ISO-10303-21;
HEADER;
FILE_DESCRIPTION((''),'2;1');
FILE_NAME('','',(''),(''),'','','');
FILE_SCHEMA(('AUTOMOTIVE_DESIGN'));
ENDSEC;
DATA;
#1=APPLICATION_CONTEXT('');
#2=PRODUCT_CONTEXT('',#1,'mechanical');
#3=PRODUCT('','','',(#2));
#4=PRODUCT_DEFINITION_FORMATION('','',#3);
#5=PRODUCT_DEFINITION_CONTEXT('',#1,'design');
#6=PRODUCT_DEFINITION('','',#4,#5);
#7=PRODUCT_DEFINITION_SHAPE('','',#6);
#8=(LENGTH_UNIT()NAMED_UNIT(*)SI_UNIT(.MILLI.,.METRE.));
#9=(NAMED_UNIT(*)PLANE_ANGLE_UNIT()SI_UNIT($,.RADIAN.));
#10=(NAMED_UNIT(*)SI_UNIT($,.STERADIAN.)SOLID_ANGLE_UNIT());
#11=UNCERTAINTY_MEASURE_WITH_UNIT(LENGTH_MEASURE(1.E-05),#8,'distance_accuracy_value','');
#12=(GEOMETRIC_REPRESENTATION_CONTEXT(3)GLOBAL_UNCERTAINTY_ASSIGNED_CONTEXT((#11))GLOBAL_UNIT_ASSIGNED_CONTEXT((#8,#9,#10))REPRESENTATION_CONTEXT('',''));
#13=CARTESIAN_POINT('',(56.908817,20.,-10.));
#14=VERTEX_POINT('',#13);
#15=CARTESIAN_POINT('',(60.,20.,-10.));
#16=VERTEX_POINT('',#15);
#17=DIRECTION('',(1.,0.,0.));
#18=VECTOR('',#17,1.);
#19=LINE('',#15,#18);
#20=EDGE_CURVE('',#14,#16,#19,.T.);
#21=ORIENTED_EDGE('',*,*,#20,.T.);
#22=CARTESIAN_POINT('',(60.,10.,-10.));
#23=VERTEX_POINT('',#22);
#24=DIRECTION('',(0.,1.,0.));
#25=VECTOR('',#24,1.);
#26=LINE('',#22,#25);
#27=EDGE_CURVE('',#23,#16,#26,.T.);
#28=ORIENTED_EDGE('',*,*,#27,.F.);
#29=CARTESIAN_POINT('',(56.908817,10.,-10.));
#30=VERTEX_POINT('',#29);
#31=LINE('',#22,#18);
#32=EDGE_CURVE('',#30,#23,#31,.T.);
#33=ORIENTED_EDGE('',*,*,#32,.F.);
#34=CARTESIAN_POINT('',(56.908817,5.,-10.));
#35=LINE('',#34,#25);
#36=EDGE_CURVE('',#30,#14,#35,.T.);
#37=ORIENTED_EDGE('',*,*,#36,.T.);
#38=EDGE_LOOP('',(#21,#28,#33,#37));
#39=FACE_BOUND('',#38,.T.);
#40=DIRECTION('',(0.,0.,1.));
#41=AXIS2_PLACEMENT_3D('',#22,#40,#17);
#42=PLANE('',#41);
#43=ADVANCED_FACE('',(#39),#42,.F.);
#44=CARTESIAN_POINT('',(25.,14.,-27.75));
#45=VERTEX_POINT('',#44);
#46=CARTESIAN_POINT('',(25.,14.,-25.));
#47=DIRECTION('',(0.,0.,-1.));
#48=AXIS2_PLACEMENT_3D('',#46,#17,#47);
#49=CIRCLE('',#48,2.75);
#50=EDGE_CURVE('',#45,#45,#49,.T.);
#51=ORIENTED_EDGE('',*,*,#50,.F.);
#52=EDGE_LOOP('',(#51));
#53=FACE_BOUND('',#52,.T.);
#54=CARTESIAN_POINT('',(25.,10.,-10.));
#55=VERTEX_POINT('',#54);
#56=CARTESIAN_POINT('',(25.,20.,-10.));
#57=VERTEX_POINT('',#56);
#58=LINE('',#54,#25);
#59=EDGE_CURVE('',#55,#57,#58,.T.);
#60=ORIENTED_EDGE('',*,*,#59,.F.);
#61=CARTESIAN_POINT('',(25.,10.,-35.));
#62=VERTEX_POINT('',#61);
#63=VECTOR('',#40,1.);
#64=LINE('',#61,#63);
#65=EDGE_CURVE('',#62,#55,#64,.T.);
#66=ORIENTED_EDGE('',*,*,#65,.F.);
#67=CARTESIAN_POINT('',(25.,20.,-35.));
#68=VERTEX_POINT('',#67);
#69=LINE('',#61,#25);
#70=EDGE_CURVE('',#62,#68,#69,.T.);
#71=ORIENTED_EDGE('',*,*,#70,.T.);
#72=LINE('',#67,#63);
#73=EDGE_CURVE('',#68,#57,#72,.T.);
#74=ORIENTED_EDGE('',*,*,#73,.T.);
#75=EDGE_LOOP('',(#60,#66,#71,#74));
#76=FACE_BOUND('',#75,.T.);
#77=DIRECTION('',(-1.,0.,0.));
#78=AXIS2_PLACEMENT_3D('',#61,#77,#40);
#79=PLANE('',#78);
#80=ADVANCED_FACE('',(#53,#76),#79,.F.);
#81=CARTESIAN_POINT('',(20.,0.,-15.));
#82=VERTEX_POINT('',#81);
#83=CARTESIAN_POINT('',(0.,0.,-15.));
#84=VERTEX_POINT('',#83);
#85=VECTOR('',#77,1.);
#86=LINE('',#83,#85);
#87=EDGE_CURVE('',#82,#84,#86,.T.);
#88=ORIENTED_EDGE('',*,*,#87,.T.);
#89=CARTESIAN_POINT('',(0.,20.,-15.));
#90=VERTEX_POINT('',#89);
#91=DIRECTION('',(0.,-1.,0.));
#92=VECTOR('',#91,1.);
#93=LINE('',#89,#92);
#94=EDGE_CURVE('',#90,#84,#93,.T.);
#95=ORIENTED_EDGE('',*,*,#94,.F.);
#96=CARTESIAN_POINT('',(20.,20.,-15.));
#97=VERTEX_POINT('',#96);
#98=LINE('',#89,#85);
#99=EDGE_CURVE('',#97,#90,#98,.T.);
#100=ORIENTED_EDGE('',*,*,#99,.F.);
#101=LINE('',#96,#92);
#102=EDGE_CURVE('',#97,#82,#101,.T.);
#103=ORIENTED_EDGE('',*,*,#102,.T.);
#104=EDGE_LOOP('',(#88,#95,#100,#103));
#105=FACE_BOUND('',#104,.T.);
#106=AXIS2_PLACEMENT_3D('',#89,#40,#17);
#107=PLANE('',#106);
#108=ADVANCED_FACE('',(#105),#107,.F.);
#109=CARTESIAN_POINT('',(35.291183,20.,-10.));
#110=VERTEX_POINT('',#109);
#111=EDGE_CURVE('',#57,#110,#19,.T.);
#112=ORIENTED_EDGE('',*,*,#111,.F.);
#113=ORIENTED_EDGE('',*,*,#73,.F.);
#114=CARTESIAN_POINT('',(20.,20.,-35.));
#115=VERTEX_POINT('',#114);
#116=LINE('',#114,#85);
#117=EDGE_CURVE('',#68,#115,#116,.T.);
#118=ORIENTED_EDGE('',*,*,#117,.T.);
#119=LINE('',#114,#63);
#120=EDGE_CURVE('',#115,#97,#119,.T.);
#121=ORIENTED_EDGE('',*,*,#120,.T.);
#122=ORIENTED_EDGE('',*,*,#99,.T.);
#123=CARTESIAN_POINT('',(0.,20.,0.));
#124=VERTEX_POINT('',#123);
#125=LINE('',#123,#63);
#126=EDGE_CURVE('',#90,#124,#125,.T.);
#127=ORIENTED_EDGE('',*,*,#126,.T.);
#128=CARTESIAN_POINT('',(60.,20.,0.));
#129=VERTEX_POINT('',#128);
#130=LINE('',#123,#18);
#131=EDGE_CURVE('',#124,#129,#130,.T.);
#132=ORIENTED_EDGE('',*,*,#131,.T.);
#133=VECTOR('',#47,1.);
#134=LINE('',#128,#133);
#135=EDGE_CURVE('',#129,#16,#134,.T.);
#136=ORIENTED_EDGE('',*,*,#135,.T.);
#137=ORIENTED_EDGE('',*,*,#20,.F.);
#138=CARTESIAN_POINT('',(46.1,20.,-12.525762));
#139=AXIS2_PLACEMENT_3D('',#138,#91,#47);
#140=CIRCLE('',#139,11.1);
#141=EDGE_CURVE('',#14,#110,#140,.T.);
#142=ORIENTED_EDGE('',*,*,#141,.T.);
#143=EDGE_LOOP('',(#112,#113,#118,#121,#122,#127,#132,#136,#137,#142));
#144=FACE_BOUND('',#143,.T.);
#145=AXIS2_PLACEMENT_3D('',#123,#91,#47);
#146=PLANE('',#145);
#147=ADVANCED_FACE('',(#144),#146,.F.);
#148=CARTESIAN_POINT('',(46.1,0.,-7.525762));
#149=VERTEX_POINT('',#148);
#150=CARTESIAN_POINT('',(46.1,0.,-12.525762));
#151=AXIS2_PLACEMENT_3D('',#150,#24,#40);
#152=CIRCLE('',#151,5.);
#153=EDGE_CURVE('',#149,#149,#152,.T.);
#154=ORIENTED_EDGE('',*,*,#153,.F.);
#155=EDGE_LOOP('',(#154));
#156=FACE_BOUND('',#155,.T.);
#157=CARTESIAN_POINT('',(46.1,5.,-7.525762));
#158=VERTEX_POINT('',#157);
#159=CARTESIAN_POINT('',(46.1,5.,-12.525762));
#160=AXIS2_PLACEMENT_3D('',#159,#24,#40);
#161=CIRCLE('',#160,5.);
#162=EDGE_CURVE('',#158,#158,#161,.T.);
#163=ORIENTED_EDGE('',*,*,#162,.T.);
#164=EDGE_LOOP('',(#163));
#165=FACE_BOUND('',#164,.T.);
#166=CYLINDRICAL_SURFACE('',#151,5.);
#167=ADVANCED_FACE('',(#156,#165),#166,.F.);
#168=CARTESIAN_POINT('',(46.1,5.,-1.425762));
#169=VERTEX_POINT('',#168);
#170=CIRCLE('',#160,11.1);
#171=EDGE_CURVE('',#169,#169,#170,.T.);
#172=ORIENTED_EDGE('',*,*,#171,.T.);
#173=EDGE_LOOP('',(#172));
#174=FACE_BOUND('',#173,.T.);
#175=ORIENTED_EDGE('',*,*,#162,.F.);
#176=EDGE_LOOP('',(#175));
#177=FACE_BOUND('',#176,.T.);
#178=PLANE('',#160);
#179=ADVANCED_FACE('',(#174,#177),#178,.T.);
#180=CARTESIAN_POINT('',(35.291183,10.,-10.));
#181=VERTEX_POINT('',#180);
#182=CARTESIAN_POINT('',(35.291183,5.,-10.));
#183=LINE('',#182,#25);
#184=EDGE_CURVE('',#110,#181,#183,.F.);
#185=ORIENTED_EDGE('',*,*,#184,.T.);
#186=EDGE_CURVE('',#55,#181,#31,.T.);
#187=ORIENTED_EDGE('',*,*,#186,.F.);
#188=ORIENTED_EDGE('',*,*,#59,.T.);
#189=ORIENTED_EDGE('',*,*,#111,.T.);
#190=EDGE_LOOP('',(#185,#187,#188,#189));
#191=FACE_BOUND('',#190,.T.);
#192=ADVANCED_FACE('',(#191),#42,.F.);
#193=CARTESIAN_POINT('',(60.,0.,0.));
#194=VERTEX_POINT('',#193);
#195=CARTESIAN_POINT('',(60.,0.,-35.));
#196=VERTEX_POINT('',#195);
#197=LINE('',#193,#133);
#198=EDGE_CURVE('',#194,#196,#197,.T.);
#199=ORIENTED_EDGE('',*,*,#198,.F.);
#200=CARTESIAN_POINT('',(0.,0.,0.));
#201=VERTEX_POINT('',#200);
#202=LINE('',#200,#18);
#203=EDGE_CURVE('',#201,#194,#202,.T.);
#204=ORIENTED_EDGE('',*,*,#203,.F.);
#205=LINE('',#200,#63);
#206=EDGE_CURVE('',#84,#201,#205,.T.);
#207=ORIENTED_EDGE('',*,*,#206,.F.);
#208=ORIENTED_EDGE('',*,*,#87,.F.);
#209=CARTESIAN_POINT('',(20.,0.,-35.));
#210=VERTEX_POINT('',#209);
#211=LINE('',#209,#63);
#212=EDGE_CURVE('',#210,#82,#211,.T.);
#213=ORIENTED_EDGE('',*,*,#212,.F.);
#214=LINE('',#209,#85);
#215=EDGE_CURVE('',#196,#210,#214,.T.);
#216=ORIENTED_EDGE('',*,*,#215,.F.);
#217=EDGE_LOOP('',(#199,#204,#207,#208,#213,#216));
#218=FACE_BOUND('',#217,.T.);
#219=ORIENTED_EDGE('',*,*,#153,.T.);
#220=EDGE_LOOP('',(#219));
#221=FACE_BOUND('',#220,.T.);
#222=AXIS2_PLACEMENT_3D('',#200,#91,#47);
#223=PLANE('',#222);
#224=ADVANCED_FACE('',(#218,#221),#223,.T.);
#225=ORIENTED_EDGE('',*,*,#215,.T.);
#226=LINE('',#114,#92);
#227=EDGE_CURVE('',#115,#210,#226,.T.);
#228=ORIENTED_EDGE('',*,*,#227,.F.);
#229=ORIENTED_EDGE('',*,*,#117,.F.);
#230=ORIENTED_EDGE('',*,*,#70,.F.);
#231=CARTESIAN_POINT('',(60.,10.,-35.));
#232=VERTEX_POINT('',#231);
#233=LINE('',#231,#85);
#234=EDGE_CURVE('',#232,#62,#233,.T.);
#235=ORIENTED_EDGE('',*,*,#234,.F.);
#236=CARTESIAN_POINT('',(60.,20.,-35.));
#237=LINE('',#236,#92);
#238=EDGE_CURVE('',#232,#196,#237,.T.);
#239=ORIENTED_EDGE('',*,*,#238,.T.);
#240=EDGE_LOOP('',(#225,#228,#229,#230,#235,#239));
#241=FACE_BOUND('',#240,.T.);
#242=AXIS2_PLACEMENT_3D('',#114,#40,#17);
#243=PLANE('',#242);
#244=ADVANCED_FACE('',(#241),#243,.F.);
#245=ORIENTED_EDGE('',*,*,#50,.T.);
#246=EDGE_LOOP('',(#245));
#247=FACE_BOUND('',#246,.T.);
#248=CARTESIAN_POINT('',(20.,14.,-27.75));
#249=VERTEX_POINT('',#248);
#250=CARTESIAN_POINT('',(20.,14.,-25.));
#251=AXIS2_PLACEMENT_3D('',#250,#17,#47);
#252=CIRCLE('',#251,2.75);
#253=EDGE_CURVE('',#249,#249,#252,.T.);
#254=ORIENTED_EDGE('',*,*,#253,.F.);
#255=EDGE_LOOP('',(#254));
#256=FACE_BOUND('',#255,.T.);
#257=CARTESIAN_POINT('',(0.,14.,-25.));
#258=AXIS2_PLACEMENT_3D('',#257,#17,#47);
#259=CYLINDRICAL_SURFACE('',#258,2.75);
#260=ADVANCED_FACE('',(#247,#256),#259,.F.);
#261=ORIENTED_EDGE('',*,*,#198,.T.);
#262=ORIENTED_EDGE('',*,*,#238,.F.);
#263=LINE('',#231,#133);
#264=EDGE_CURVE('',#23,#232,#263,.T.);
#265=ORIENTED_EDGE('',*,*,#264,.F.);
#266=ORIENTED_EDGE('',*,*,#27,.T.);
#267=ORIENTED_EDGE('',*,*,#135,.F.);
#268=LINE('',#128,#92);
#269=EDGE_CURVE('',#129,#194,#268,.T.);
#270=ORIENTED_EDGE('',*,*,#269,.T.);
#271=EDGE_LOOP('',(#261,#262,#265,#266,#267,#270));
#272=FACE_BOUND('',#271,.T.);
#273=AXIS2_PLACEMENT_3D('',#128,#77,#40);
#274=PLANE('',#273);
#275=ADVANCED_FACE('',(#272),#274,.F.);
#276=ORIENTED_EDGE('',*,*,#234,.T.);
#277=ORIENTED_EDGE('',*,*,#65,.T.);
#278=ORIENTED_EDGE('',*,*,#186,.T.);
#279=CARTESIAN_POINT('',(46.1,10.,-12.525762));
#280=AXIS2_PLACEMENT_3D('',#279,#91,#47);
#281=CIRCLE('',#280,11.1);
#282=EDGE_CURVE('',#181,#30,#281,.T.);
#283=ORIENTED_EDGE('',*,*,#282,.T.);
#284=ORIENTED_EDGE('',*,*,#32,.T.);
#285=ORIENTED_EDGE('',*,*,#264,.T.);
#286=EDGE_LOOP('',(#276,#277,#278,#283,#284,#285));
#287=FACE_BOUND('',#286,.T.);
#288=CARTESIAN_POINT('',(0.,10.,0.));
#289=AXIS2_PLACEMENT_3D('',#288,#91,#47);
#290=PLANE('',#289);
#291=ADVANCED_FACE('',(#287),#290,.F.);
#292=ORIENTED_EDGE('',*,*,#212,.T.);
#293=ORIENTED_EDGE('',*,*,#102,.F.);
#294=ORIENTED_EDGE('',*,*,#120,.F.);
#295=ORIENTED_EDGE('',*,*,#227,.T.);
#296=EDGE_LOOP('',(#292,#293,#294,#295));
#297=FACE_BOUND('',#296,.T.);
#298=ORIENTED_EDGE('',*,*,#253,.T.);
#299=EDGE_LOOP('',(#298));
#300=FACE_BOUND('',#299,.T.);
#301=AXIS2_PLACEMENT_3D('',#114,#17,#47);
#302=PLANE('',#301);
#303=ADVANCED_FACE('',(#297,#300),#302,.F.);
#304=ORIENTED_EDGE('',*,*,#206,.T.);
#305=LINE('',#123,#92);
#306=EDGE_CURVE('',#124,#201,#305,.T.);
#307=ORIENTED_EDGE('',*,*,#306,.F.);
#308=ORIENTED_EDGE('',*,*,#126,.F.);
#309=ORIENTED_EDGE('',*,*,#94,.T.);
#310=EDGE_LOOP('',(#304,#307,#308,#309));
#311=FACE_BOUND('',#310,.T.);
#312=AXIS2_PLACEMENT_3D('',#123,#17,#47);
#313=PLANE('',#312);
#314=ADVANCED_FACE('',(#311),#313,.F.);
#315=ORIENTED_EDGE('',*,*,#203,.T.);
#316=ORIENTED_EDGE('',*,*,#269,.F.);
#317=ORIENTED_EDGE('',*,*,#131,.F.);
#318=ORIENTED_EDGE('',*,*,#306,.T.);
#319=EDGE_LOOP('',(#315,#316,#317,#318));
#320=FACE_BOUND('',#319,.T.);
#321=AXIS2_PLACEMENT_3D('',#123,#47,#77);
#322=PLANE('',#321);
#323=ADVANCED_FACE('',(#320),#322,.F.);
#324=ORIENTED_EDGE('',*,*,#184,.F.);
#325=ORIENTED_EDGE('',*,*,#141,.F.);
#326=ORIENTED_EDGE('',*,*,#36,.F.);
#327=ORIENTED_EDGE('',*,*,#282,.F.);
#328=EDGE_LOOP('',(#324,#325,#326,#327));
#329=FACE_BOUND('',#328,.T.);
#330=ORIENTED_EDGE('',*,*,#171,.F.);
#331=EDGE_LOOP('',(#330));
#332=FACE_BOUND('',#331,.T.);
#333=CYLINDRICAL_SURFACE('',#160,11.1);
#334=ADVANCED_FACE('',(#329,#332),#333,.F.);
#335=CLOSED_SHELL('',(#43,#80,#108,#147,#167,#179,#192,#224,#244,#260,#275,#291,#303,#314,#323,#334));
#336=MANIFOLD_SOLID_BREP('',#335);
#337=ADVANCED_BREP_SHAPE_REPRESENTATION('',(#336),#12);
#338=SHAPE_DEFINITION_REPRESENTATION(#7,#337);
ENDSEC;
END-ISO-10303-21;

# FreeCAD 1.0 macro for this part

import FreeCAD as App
import Part
import Sketcher

V = App.Vector
Q = App.Units.Quantity


def add_polygon(sketch, points):
    """Adds a closed chain of lines whose ends are joined by coincident constraints."""
    first, n = sketch.GeometryCount, len(points)
    for a, b in zip(points, points[1:] + points[:1]):
        sketch.addGeometry(Part.LineSegment(App.Vector(*a, 0), App.Vector(*b, 0)), False)
    for i in range(n):
        sketch.addConstraint(Sketcher.Constraint("Coincident", first + i, 2, first + (i + 1) % n, 1))

doc = App.newDocument("Part")
body = doc.addObject("PartDesign::Body", "Body")

# Sketch on XZ plane
sketch1 = body.newObject("Sketcher::SketchObject", "Sketch")
sketch1.AttachmentSupport = (doc.getObject("XZ_Plane"), [""])
sketch1.MapMode = "FlatFace"
add_polygon(sketch1, [(0, 0), (60, 0), (60, -35), (20, -35), (20, -15), (0, -15)])  # lines 0-5
sketch1.addConstraint([
    Sketcher.Constraint("Horizontal", 0),
    Sketcher.Constraint("Vertical", 1),
    Sketcher.Constraint("Horizontal", 2),
    Sketcher.Constraint("Vertical", 3),
    Sketcher.Constraint("Horizontal", 4),
    Sketcher.Constraint("Vertical", 5),
    Sketcher.Constraint("Coincident", 5, 2, -1, 1),
    Sketcher.Constraint("Equal", 4, 3),
    Sketcher.Constraint("DistanceX", 0, 1, 0, 2, Q("60 mm")),
    Sketcher.Constraint("DistanceX", 2, 2, 2, 1, Q("40 mm")),
    Sketcher.Constraint("DistanceY", 1, 2, 1, 1, Q("35 mm")),
])
pad1 = body.newObject("PartDesign::Pad", "Pad")
pad1.Profile = sketch1
pad1.Length = 20
pad1.Reversed = True

# Sketch on XZ plane
sketch2 = body.newObject("Sketcher::SketchObject", "Sketch001")
sketch2.AttachmentSupport = (doc.getObject("XZ_Plane"), [""])
sketch2.MapMode = "FlatFace"
sketch2.AttachmentOffset = App.Placement(V(0, 0, -20), App.Rotation())
add_polygon(sketch2, [(25, -35), (25, -10), (60, -10), (60, -35)])  # lines 0-3
sketch2.addConstraint([
    Sketcher.Constraint("Vertical", 0),
    Sketcher.Constraint("Horizontal", 1),
    Sketcher.Constraint("Vertical", 2),
    Sketcher.Constraint("Horizontal", 3),
    Sketcher.Constraint("DistanceX", 1, 1, 1, 2, Q("35 mm")),
    Sketcher.Constraint("DistanceY", 0, 1, 0, 2, Q("25 mm")),
    Sketcher.Constraint("DistanceX", -1, 1, 0, 2, Q("25 mm")),
    Sketcher.Constraint("DistanceY", 0, 2, -1, 1, Q("10 mm")),
])
pocket1 = body.newObject("PartDesign::Pocket", "Pocket")
pocket1.Profile = sketch2
pocket1.Length = 10
pocket1.Reversed = True

# Sketch on XZ plane
sketch3 = body.newObject("Sketcher::SketchObject", "Sketch002")
sketch3.AttachmentSupport = (doc.getObject("XZ_Plane"), [""])
sketch3.MapMode = "FlatFace"
sketch3.AttachmentOffset = App.Placement(V(0, 0, -30), App.Rotation())
sketch3.addGeometry(Part.Circle(V(46, -13, 0), V(0, 0, 1), 11), False)
sketch3.addConstraint([
    Sketcher.Constraint("Diameter", 0, Q("22.2 mm")),
    Sketcher.Constraint("DistanceX", -1, 1, 0, 3, Q("46.1 mm")),
    Sketcher.Constraint("DistanceY", 0, 3, -1, 1, Q("12.525762 mm")),
])
pocket2 = body.newObject("PartDesign::Pocket", "Pocket001")
pocket2.Profile = sketch3
pocket2.Length = 25
pocket2.Reversed = True

# Sketch on XZ plane
sketch4 = body.newObject("Sketcher::SketchObject", "Sketch003")
sketch4.AttachmentSupport = (doc.getObject("XZ_Plane"), [""])
sketch4.MapMode = "FlatFace"
sketch4.AttachmentOffset = App.Placement(V(0, 0, -5), App.Rotation())
sketch4.addGeometry(Part.Circle(V(46, -13, 0), V(0, 0, 1), 5), False)
sketch4.addConstraint([
    Sketcher.Constraint("Diameter", 0, Q("10 mm")),
    Sketcher.Constraint("DistanceX", -1, 1, 0, 3, Q("46.1 mm")),
    Sketcher.Constraint("DistanceY", 0, 3, -1, 1, Q("12.525762 mm")),
])
pocket3 = body.newObject("PartDesign::Pocket", "Pocket002")
pocket3.Profile = sketch4
pocket3.Type = "ThroughAll"
pocket3.Reversed = True

# Sketch on YZ plane
sketch5 = body.newObject("Sketcher::SketchObject", "Sketch004")
sketch5.AttachmentSupport = (doc.getObject("YZ_Plane"), [""])
sketch5.MapMode = "FlatFace"
sketch5.AttachmentOffset = App.Placement(V(0, 0, 25), App.Rotation())
sketch5.addGeometry(Part.Circle(V(14, -25, 0), V(0, 0, 1), 2.8), False)
sketch5.addConstraint([
    Sketcher.Constraint("Diameter", 0, Q("5.5 mm")),
    Sketcher.Constraint("DistanceX", -1, 1, 0, 3, Q("14 mm")),
    Sketcher.Constraint("DistanceY", 0, 3, -1, 1, Q("25 mm")),
])
pocket4 = body.newObject("PartDesign::Pocket", "Pocket003")
pocket4.Profile = sketch5
pocket4.Type = "ThroughAll"

doc.recompute()
